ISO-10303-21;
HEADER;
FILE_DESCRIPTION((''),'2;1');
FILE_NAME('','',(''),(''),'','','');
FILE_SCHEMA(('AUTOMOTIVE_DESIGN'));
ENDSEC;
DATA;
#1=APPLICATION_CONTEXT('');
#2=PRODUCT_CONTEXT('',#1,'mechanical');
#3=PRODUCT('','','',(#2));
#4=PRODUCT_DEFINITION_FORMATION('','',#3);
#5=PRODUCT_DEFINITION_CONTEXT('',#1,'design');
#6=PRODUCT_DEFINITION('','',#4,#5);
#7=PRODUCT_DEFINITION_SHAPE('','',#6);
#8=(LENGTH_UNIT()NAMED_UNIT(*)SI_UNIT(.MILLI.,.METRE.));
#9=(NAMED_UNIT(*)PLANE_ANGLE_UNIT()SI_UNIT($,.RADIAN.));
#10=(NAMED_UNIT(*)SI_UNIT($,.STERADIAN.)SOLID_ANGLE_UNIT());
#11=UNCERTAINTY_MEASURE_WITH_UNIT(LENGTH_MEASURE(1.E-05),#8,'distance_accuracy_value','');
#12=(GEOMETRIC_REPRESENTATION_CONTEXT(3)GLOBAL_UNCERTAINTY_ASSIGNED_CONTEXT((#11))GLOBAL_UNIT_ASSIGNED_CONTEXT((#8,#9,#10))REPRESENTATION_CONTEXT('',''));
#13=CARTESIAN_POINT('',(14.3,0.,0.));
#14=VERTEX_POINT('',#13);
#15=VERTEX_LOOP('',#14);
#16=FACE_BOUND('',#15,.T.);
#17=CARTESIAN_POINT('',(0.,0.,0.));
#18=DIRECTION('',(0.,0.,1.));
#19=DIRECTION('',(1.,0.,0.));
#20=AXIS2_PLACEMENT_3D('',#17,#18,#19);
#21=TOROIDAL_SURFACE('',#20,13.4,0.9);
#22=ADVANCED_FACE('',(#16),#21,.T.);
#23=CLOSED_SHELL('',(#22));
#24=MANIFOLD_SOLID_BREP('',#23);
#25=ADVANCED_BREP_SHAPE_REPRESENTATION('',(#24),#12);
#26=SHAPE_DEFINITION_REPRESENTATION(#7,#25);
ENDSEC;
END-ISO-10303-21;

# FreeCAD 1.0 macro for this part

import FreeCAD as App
import Part
import Sketcher
from FreeCAD import Vector

doc = App.newDocument("Part")
body = doc.addObject("PartDesign::Body", "Body")

sketch1 = body.newObject("Sketcher::SketchObject", "Sketch")
sketch1.AttachmentSupport = (doc.getObject("YZ_Plane"), [""])
sketch1.MapMode = "FlatFace"
sketch1.addGeometry(Part.Circle(Vector(13.4, 0, 0), Vector(0, 0, 1), 0.9), False)
sketch1.addConstraint(Sketcher.Constraint("PointOnObject", 0, 3, -1))
sketch1.addConstraint(Sketcher.Constraint("Diameter", 0, 1.8))
sketch1.addConstraint(Sketcher.Constraint("DistanceX", -1, 1, 0, 3, 13.4))
revolution = body.newObject("PartDesign::Revolution", "Revolution")
revolution.Profile = sketch1
revolution.ReferenceAxis = (sketch1, ["V_Axis"])
revolution.Angle = 360

doc.recompute()
